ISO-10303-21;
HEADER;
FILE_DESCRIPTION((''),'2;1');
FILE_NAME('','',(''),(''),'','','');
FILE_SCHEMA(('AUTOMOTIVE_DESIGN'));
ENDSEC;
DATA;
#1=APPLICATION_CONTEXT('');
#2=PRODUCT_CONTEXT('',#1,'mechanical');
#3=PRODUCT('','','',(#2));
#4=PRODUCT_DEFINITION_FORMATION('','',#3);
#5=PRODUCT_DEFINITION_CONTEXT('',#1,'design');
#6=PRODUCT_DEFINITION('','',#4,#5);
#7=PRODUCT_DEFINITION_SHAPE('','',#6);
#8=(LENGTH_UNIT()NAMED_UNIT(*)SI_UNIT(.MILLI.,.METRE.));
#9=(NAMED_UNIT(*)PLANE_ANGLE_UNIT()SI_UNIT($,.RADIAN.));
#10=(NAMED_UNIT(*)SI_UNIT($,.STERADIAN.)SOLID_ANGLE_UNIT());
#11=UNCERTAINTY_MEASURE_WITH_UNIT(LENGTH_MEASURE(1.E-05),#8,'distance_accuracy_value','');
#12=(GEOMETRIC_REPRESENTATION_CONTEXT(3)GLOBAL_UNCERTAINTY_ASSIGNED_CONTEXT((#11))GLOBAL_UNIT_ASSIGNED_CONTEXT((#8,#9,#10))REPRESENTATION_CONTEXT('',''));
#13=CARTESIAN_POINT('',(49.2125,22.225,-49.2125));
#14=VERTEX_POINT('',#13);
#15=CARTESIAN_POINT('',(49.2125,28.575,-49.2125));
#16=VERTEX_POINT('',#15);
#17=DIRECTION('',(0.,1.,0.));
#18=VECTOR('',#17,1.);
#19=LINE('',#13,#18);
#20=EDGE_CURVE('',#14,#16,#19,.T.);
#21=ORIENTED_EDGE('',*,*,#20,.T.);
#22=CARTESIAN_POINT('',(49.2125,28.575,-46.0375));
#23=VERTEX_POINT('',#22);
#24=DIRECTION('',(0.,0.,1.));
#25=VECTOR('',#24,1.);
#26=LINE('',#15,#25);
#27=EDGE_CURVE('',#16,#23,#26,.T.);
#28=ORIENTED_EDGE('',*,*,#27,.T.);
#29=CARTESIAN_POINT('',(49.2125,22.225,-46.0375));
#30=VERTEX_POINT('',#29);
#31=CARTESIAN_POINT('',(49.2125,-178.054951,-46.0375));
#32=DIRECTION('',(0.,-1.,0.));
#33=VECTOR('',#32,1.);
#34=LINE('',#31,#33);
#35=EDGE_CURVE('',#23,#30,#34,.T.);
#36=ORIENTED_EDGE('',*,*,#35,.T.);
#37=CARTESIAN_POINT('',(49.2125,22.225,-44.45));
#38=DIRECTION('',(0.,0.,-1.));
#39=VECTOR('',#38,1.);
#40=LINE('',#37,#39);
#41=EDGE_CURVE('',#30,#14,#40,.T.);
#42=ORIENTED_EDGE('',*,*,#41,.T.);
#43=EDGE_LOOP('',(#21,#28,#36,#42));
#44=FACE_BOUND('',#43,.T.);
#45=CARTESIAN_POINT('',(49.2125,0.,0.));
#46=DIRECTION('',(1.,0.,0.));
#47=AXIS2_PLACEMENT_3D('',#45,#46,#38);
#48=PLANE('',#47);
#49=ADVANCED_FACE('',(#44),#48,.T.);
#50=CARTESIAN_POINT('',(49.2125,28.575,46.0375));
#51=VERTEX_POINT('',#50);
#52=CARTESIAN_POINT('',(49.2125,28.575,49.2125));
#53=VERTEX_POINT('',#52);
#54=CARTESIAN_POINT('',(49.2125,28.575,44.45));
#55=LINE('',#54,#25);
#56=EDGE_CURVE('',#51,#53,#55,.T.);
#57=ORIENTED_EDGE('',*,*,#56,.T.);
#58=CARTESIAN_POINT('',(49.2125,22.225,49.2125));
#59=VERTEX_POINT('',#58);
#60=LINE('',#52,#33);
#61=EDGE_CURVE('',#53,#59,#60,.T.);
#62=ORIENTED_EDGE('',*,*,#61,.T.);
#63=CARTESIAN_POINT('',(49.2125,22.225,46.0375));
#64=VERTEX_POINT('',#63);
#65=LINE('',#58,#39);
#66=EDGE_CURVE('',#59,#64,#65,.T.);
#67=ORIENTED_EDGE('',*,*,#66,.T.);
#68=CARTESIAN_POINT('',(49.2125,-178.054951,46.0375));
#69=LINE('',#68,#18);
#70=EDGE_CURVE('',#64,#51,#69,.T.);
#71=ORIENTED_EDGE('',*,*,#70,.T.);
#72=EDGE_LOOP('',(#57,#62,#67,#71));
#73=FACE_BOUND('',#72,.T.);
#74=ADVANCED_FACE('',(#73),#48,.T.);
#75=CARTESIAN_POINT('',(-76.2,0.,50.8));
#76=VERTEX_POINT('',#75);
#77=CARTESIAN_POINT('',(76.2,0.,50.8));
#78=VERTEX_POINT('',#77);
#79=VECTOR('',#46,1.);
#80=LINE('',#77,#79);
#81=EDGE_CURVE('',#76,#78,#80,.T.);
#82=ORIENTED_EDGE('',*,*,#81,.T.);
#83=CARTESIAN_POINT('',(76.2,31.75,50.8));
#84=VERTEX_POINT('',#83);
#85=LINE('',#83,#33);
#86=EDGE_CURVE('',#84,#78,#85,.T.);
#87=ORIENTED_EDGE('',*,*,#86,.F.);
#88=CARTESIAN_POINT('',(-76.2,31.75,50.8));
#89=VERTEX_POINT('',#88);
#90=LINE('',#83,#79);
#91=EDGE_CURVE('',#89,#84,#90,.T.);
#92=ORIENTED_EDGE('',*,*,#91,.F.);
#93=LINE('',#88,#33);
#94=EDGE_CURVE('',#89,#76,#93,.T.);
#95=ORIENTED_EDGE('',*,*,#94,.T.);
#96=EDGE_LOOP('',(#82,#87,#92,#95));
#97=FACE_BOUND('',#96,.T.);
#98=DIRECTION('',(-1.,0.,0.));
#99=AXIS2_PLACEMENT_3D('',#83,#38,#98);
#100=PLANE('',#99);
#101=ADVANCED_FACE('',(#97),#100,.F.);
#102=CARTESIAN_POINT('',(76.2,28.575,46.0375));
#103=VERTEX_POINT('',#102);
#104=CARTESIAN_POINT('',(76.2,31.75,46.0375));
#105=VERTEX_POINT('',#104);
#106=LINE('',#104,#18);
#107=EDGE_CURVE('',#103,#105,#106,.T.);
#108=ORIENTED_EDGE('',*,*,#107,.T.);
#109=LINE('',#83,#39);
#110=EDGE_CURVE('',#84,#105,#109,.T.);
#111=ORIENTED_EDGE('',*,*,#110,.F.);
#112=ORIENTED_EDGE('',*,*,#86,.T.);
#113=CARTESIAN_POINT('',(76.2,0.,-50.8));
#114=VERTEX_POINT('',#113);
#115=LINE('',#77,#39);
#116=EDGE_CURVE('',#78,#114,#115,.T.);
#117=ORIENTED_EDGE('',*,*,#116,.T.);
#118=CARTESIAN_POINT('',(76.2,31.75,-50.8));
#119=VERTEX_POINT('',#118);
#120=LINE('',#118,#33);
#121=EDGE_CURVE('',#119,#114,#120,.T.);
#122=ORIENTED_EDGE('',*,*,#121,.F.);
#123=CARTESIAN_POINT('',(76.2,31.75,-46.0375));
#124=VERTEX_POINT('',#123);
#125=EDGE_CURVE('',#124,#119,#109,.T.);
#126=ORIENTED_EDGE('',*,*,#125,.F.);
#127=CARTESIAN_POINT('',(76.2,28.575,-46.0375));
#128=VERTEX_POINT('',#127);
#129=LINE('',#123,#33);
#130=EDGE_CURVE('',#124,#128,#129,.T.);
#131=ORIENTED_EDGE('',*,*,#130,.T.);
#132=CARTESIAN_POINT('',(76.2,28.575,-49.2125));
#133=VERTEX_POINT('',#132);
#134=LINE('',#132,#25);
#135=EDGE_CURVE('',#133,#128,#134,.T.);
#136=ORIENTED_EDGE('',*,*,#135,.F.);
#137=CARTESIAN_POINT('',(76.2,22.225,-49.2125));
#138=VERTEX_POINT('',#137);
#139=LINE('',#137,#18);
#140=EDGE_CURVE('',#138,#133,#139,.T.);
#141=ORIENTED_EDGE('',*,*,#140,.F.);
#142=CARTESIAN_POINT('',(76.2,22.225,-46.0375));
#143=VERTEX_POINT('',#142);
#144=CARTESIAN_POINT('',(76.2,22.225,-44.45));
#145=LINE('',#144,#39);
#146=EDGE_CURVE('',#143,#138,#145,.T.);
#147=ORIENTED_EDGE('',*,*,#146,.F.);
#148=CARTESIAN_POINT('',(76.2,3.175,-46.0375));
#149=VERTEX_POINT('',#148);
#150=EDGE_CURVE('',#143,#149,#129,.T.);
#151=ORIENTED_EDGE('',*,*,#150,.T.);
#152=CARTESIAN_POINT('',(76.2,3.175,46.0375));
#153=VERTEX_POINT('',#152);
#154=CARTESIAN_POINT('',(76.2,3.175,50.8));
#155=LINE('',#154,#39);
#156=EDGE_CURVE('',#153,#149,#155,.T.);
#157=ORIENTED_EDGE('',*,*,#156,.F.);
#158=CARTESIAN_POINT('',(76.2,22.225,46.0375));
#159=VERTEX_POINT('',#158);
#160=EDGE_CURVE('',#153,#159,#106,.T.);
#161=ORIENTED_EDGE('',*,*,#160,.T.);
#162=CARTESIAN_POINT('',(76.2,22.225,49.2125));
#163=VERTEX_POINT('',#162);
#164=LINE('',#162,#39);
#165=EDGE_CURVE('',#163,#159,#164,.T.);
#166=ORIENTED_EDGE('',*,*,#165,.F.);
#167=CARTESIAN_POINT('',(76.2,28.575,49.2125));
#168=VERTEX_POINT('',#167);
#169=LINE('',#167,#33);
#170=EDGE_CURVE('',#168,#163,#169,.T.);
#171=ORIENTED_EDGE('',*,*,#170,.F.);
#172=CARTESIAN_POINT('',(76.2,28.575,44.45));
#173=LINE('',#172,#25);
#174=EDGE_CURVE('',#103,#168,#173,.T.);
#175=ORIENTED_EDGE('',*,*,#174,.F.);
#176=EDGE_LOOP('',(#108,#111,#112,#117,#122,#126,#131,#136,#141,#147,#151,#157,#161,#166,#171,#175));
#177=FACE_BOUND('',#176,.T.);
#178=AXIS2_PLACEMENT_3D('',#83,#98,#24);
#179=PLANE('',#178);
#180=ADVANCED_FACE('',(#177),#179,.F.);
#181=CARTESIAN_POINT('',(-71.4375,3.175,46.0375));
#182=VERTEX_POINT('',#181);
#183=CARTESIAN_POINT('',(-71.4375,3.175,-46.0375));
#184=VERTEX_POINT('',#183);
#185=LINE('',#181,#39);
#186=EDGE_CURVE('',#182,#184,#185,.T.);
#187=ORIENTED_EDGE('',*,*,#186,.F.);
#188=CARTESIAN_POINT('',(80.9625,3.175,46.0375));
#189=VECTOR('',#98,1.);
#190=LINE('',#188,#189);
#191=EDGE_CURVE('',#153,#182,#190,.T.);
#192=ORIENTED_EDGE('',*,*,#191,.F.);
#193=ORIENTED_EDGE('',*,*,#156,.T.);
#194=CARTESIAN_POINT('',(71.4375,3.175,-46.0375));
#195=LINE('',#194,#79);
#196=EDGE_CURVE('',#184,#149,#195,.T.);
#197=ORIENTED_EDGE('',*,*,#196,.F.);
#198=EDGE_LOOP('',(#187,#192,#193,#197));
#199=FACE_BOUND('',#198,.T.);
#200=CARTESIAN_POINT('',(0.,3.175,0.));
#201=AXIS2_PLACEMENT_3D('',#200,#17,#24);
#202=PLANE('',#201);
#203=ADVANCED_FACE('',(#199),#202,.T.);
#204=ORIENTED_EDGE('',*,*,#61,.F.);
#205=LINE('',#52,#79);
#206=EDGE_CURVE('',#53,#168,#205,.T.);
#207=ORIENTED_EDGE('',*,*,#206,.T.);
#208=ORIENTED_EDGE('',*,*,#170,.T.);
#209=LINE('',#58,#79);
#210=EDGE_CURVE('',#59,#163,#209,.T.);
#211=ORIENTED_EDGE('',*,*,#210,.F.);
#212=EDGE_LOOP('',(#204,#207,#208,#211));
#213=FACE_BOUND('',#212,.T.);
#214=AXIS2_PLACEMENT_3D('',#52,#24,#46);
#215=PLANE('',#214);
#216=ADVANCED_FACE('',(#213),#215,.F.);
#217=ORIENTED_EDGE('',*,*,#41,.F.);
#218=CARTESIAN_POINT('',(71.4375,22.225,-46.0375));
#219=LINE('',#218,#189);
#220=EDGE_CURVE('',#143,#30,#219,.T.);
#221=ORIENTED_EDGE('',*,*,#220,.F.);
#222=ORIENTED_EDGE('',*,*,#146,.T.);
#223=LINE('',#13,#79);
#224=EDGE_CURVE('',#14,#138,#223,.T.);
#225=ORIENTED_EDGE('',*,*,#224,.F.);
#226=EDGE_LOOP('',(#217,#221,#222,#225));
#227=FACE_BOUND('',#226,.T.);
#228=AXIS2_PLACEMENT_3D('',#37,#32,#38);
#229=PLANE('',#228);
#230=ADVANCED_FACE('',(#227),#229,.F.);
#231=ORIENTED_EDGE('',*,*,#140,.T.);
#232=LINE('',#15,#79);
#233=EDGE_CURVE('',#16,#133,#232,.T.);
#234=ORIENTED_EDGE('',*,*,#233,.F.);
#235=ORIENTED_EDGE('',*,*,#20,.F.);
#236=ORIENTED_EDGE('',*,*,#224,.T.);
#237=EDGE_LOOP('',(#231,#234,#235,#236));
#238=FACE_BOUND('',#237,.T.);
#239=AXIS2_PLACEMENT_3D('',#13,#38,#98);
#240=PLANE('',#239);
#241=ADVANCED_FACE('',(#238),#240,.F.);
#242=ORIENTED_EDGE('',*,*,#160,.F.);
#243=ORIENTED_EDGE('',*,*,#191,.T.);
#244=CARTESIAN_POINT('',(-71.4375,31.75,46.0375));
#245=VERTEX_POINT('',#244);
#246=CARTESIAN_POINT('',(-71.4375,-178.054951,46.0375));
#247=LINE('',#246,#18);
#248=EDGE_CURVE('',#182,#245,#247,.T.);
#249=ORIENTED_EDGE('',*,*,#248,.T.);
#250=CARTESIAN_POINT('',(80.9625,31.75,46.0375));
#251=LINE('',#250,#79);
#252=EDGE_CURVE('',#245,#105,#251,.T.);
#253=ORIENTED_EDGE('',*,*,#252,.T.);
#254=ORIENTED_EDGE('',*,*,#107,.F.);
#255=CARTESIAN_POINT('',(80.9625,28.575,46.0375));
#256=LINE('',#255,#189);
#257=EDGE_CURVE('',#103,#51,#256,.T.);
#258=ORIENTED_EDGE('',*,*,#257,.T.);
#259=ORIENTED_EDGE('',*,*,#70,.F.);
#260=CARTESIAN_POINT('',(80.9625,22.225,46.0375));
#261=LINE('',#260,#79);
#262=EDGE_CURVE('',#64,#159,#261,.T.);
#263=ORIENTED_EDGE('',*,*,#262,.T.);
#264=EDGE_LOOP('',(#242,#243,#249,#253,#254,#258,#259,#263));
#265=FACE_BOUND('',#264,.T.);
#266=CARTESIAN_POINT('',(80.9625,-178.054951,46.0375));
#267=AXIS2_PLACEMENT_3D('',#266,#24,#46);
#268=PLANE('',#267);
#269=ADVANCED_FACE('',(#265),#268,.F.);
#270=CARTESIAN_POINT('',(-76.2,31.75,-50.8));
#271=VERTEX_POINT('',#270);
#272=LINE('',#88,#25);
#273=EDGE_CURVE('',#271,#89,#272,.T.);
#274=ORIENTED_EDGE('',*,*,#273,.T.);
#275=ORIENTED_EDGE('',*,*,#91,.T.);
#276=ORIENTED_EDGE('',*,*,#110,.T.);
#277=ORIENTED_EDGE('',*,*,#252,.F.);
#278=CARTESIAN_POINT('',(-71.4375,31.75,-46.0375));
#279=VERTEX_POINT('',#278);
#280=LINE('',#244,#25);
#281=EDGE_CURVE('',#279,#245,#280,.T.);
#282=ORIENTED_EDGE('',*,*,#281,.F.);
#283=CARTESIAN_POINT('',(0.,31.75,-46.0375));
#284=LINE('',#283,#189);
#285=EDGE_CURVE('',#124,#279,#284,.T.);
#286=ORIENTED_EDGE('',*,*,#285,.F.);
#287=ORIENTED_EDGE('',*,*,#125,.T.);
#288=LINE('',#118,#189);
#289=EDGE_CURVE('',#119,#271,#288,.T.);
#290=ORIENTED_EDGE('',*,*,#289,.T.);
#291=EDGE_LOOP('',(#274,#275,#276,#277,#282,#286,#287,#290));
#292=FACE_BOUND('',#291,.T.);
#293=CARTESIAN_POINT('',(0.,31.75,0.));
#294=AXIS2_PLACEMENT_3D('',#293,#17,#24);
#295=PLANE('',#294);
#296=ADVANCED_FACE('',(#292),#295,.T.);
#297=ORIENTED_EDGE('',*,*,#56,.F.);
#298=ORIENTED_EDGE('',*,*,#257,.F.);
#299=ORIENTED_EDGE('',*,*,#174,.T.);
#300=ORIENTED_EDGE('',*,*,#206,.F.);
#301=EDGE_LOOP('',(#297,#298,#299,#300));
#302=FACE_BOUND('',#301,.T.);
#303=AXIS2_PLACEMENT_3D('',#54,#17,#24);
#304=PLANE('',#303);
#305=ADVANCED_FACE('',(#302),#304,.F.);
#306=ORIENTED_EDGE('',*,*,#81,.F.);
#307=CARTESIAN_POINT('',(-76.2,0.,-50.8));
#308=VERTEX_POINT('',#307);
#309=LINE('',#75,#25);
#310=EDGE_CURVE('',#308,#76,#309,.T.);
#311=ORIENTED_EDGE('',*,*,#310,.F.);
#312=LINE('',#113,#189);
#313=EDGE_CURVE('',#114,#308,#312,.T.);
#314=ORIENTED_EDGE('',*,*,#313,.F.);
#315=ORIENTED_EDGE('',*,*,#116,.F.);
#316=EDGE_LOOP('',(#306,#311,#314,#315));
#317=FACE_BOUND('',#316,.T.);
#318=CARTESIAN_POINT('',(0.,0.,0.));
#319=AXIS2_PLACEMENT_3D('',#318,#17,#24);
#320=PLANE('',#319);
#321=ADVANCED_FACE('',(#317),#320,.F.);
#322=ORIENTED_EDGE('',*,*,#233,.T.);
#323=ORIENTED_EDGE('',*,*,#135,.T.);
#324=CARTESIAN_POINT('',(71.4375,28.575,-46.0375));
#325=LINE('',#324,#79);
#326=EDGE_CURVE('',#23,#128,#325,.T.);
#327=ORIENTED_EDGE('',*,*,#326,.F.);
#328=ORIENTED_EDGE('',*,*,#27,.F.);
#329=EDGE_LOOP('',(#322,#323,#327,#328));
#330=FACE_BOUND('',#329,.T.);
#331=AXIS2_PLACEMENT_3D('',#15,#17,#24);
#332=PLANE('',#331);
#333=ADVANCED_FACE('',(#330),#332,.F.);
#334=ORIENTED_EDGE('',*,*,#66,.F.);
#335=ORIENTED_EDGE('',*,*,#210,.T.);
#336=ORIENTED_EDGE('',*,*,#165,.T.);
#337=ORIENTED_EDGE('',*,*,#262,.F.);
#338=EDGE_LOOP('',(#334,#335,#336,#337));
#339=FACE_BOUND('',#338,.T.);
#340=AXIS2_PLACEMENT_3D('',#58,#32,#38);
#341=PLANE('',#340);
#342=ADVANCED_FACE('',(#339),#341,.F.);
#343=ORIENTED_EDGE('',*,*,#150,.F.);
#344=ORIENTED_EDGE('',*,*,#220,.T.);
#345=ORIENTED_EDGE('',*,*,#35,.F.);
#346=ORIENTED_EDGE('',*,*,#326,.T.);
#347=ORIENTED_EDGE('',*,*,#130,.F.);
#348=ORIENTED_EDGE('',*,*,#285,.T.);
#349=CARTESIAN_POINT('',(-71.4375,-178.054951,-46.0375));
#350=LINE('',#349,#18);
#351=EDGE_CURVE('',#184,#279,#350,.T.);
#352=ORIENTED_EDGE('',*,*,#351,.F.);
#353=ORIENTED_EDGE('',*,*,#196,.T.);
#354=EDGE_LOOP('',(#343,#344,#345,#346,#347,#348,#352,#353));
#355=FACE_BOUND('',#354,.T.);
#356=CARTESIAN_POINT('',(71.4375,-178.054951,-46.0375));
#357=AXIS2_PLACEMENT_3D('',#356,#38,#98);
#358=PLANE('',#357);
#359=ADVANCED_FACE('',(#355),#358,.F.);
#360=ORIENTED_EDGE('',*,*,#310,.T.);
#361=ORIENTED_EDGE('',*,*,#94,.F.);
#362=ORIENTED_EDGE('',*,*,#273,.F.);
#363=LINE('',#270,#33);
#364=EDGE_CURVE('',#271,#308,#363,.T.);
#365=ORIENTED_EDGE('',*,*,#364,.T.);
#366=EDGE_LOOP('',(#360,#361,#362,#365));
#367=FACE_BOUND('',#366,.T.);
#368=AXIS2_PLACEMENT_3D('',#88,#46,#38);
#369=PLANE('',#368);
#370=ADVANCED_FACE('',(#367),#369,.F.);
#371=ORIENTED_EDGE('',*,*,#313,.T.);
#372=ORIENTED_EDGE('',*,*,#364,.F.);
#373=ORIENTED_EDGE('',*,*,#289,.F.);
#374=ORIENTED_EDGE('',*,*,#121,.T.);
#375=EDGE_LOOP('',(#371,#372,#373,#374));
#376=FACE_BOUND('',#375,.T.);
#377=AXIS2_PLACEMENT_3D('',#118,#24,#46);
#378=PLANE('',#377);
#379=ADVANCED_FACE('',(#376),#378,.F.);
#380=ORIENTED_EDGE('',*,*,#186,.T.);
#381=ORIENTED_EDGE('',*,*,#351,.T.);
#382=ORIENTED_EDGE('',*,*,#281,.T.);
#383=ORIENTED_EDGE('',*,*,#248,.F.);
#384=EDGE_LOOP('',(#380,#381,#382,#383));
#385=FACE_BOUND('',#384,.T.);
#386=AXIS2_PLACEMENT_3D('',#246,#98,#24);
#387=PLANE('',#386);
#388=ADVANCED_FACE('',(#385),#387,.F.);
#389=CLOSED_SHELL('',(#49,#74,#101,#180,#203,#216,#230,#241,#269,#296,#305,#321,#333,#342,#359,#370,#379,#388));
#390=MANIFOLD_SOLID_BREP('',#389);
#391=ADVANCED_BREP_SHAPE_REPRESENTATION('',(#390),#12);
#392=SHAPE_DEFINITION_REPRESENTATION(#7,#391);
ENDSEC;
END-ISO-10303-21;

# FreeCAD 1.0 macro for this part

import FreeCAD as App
import Part
import Sketcher

V = App.Vector
Q = App.Units.Quantity

doc = App.newDocument("Part")
body = doc.addObject("PartDesign::Body", "Body")

# Sketch on XZ plane
sketch1 = body.newObject("Sketcher::SketchObject", "Sketch")
sketch1.AttachmentSupport = (doc.getObject("XZ_Plane"), [""])
sketch1.MapMode = "FlatFace"
sketch1.addGeometry([
    Part.LineSegment(V(-76, -51, 0), V(-76, 51, 0)),
    Part.LineSegment(V(-76, 51, 0), V(76, 51, 0)),
    Part.LineSegment(V(76, 51, 0), V(76, -51, 0)),
    Part.LineSegment(V(76, -51, 0), V(-76, -51, 0)),
], False)
sketch1.addConstraint([
    Sketcher.Constraint("Coincident", 0, 2, 1, 1),
    Sketcher.Constraint("Coincident", 1, 2, 2, 1),
    Sketcher.Constraint("Coincident", 2, 2, 3, 1),
    Sketcher.Constraint("Coincident", 3, 2, 0, 1),
    Sketcher.Constraint("Vertical", 0),
    Sketcher.Constraint("Horizontal", 1),
    Sketcher.Constraint("Vertical", 2),
    Sketcher.Constraint("Horizontal", 3),
    Sketcher.Constraint("Symmetric", 0, 2, 2, 2, -1, 1),
    Sketcher.Constraint("DistanceX", 1, 1, 1, 2, Q("6 in")),
    Sketcher.Constraint("DistanceY", 0, 1, 0, 2, Q("4 in")),
])
pad1 = body.newObject("PartDesign::Pad", "Pad")
pad1.Profile = sketch1
pad1.Length = Q("1.25 in")
pad1.Reversed = True

# Sketch on XZ plane
sketch2 = body.newObject("Sketcher::SketchObject", "Sketch001")
sketch2.AttachmentSupport = (doc.getObject("XZ_Plane"), [""])
sketch2.MapMode = "FlatFace"
sketch2.AttachmentOffset = App.Placement(V(0, 0, -1.25 * 25.4), App.Rotation())
sketch2.addGeometry([
    Part.LineSegment(V(-71, 46, 0), V(81, 46, 0)),
    Part.LineSegment(V(81, 46, 0), V(81, -46, 0)),
    Part.LineSegment(V(81, -46, 0), V(-71, -46, 0)),
    Part.LineSegment(V(-71, -46, 0), V(-71, 46, 0)),
], False)
sketch2.addConstraint([
    Sketcher.Constraint("Coincident", 0, 2, 1, 1),
    Sketcher.Constraint("Coincident", 1, 2, 2, 1),
    Sketcher.Constraint("Coincident", 2, 2, 3, 1),
    Sketcher.Constraint("Coincident", 3, 2, 0, 1),
    Sketcher.Constraint("Horizontal", 0),
    Sketcher.Constraint("Vertical", 1),
    Sketcher.Constraint("Horizontal", 2),
    Sketcher.Constraint("Vertical", 3),
    Sketcher.Constraint("DistanceX", 0, 1, 0, 2, Q("6 in")),
    Sketcher.Constraint("DistanceY", 1, 2, 1, 1, Q("3.625 in")),
    Sketcher.Constraint("DistanceX", -1, 1, 0, 2, Q("3.1875 in")),
    Sketcher.Constraint("DistanceY", -1, 1, 0, 2, Q("1.8125 in")),
])
pocket1 = body.newObject("PartDesign::Pocket", "Pocket")
pocket1.Profile = sketch2
pocket1.Length = Q("1.125 in")
pocket1.Reversed = True

# Sketch on YZ plane
sketch3 = body.newObject("Sketcher::SketchObject", "Sketch002")
sketch3.AttachmentSupport = (doc.getObject("YZ_Plane"), [""])
sketch3.MapMode = "FlatFace"
sketch3.AttachmentOffset = App.Placement(V(0, 0, 3 * 25.4), App.Rotation())
sketch3.addGeometry([
    Part.LineSegment(V(28.6, 49.2, 0), V(22.2, 49.2, 0)),  # 0
    Part.LineSegment(V(22.2, 49.2, 0), V(22.2, 44.5, 0)),  # 1
    Part.LineSegment(V(22.2, 44.5, 0), V(28.6, 44.5, 0)),  # 2
    Part.LineSegment(V(28.6, 44.5, 0), V(28.6, 49.2, 0)),  # 3
    Part.LineSegment(V(28.6, -44.5, 0), V(22.2, -44.5, 0)),  # 4
    Part.LineSegment(V(22.2, -44.5, 0), V(22.2, -49.2, 0)),  # 5
    Part.LineSegment(V(22.2, -49.2, 0), V(28.6, -49.2, 0)),  # 6
    Part.LineSegment(V(28.6, -49.2, 0), V(28.6, -44.5, 0)),  # 7
], False)
sketch3.addConstraint([
    Sketcher.Constraint("Coincident", 0, 2, 1, 1),
    Sketcher.Constraint("Coincident", 1, 2, 2, 1),
    Sketcher.Constraint("Coincident", 2, 2, 3, 1),
    Sketcher.Constraint("Coincident", 3, 2, 0, 1),
    Sketcher.Constraint("Coincident", 4, 2, 5, 1),
    Sketcher.Constraint("Coincident", 5, 2, 6, 1),
    Sketcher.Constraint("Coincident", 6, 2, 7, 1),
    Sketcher.Constraint("Coincident", 7, 2, 4, 1),
    Sketcher.Constraint("Horizontal", 0),
    Sketcher.Constraint("Vertical", 1),
    Sketcher.Constraint("Horizontal", 2),
    Sketcher.Constraint("Vertical", 3),
    Sketcher.Constraint("Horizontal", 4),
    Sketcher.Constraint("Vertical", 5),
    Sketcher.Constraint("Horizontal", 6),
    Sketcher.Constraint("Vertical", 7),
    Sketcher.Constraint("Symmetric", 1, 2, 4, 2, -1),
    Sketcher.Constraint("Symmetric", 3, 2, 6, 2, -1),
    Sketcher.Constraint("DistanceX", 0, 2, 0, 1, Q("0.25 in")),
    Sketcher.Constraint("DistanceY", 4, 2, 1, 2, Q("3.5 in")),
    Sketcher.Constraint("DistanceY", 1, 2, 1, 1, Q("0.1875 in")),
    Sketcher.Constraint("DistanceX", -1, 1, 0, 2, Q("0.875 in")),
])
pocket2 = body.newObject("PartDesign::Pocket", "Pocket001")
pocket2.Profile = sketch3
pocket2.Length = Q("1.0625 in")

doc.recompute()
